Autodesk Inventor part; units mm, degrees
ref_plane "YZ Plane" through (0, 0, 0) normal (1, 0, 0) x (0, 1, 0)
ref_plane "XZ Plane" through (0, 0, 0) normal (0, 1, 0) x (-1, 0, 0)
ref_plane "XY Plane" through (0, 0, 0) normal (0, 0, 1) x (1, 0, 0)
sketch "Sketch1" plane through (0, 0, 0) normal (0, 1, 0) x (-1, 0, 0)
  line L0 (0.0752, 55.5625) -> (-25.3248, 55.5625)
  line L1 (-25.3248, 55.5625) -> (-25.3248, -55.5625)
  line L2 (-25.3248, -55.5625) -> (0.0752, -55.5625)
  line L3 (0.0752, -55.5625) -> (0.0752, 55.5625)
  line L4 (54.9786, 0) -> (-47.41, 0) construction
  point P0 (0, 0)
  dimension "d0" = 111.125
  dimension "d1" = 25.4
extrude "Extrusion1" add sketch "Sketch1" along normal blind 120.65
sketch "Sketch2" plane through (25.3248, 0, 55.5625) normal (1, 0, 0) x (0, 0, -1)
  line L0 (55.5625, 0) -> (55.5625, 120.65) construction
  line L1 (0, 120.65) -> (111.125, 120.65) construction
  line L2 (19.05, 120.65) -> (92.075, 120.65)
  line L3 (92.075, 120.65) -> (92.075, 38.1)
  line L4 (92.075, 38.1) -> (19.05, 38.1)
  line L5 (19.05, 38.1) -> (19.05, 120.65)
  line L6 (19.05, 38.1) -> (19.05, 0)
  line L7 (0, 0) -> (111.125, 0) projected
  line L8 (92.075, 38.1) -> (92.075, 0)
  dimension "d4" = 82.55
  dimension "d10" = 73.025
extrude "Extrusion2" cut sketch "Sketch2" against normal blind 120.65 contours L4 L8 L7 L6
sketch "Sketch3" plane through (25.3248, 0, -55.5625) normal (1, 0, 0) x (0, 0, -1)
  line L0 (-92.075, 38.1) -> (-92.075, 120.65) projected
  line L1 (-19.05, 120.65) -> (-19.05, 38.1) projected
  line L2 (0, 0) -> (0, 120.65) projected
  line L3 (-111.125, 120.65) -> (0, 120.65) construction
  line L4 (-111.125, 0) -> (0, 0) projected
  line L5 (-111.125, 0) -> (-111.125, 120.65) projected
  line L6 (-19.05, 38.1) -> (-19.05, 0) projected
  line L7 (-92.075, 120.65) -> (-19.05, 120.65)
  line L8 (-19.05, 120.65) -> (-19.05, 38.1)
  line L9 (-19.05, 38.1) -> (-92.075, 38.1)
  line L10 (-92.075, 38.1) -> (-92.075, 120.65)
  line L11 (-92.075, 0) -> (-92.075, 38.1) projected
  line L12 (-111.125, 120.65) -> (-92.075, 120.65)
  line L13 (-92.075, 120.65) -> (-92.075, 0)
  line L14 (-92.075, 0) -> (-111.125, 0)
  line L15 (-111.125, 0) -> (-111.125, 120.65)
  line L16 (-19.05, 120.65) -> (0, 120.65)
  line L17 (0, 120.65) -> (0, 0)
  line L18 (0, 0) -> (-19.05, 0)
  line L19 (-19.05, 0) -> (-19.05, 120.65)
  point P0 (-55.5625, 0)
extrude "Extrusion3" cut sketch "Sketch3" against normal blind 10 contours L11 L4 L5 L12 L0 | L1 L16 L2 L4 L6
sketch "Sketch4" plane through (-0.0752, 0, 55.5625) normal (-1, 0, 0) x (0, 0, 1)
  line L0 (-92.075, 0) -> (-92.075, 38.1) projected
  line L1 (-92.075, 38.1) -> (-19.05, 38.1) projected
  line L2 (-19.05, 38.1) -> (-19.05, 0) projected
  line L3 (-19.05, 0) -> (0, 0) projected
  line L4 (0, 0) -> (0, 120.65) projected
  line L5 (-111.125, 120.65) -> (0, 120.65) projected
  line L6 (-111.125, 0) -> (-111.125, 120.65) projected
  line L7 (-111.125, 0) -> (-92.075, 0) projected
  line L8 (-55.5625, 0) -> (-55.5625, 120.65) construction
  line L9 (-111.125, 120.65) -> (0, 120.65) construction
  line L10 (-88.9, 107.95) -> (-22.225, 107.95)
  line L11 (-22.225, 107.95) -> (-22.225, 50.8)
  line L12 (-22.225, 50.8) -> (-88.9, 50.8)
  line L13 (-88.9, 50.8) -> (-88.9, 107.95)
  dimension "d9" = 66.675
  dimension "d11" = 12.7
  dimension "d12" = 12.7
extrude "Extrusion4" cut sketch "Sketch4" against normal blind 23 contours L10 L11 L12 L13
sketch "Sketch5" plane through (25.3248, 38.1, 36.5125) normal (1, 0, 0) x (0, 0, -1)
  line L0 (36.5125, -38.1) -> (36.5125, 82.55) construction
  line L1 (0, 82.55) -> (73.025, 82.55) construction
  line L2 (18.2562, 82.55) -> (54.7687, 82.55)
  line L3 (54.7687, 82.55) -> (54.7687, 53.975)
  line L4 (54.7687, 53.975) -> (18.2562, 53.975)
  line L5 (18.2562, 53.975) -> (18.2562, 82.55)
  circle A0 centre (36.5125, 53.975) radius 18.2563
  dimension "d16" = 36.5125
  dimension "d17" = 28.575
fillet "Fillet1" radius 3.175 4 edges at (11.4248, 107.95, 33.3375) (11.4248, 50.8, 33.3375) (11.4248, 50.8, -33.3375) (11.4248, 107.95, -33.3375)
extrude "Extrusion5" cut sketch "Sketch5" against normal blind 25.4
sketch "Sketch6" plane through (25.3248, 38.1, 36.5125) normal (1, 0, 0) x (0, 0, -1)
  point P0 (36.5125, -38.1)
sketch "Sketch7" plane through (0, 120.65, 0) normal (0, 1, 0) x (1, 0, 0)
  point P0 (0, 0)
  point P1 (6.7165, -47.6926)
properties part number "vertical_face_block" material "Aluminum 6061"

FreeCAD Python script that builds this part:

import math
import FreeCAD as App
import Part
import Sketcher

V = App.Vector
Q = App.Units.Quantity


def edges_at(feature, points):
    """Names of the edges that pass closest to the given points."""
    edges = feature.Shape.Edges
    near = lambda p: min(range(len(edges)), key=lambda i: edges[i].distToShape(Part.Vertex(*p))[0])
    return sorted({f"Edge{near(p) + 1}" for p in points})


def add_polygon(sketch, points):
    """Adds a closed chain of lines whose ends are joined by coincident constraints."""
    first, n = sketch.GeometryCount, len(points)
    for a, b in zip(points, points[1:] + points[:1]):
        sketch.addGeometry(Part.LineSegment(App.Vector(*a, 0), App.Vector(*b, 0)), False)
    for i in range(n):
        sketch.addConstraint(Sketcher.Constraint("Coincident", first + i, 2, first + (i + 1) % n, 1))

doc = App.newDocument("Part")
body = doc.addObject("PartDesign::Body", "Body")

# Sketch on XZ plane
sketch1 = body.newObject("Sketcher::SketchObject", "Sketch")
sketch1.AttachmentSupport = (doc.getObject("XZ_Plane"), [""])
sketch1.MapMode = "FlatFace"
add_polygon(sketch1, [(0, -56), (0, 56), (25, 56), (25, -56)])  # lines 0-3
sketch1.addConstraint([
    Sketcher.Constraint("Vertical", 0),
    Sketcher.Constraint("Horizontal", 1),
    Sketcher.Constraint("Vertical", 2),
    Sketcher.Constraint("Horizontal", 3),
    Sketcher.Constraint("DistanceX", 1, 1, 1, 2, Q("1 in")),
    Sketcher.Constraint("DistanceY", 0, 1, 0, 2, Q("4.375 in")),
    Sketcher.Constraint("DistanceY", -1, 1, 0, 2, Q("2.1875 in")),
    Sketcher.Constraint("DistanceX", 0, 2, -1, 1, Q("0.0752 mm")),
])
pad1 = body.newObject("PartDesign::Pad", "Pad")
pad1.Profile = sketch1
pad1.Length = Q("4.75 in")
pad1.Reversed = True

# Sketch on YZ plane
sketch2 = body.newObject("Sketcher::SketchObject", "Sketch001")
sketch2.AttachmentSupport = (doc.getObject("YZ_Plane"), [""])
sketch2.MapMode = "FlatFace"
sketch2.AttachmentOffset = App.Placement(V(0, 0, 25.3248), App.Rotation())
add_polygon(sketch2, [(38, -37), (38, 37), (0, 37), (0, -37)])  # lines 0-3
sketch2.addConstraint([
    Sketcher.Constraint("Vertical", 0),
    Sketcher.Constraint("Horizontal", 1),
    Sketcher.Constraint("Vertical", 2),
    Sketcher.Constraint("Horizontal", 3),
    Sketcher.Constraint("Symmetric", 1, 2, 2, 2, -1, 1),
    Sketcher.Constraint("DistanceY", 0, 1, 0, 2, Q("2.875 in")),
    Sketcher.Constraint("DistanceX", 1, 2, 1, 1, Q("1.5 in")),
])
pocket1 = body.newObject("PartDesign::Pocket", "Pocket")
pocket1.Profile = sketch2
pocket1.Length = Q("4.75 in")

# Sketch on YZ plane
sketch3 = body.newObject("Sketcher::SketchObject", "Sketch002")
sketch3.AttachmentSupport = (doc.getObject("YZ_Plane"), [""])
sketch3.MapMode = "FlatFace"
sketch3.AttachmentOffset = App.Placement(V(0, 0, 25.3248), App.Rotation())
add_polygon(sketch3, [(0, 37), (121, 37), (121, 56), (0, 56)])  # lines 0-3
add_polygon(sketch3, [(121, -37), (0, -37), (0, -56), (121, -56)])  # lines 4-7
sketch3.addConstraint([
    Sketcher.Constraint("Horizontal", 0),
    Sketcher.Constraint("Vertical", 1),
    Sketcher.Constraint("Horizontal", 2),
    Sketcher.Constraint("Vertical", 3),
    Sketcher.Constraint("Horizontal", 4),
    Sketcher.Constraint("Vertical", 5),
    Sketcher.Constraint("Horizontal", 6),
    Sketcher.Constraint("Vertical", 7),
    Sketcher.Constraint("Symmetric", 3, 2, 4, 2, -1, 1),
    Sketcher.Constraint("Symmetric", 2, 2, 5, 2, -1),
    Sketcher.Constraint("Vertical", 1, 2, 6, 2),
    Sketcher.Constraint("DistanceX", 0, 1, 0, 2, Q("4.75 in")),
    Sketcher.Constraint("DistanceY", 1, 1, 1, 2, Q("0.75 in")),
    Sketcher.Constraint("DistanceY", -1, 1, 0, 2, Q("1.4375 in")),
])
pocket2 = body.newObject("PartDesign::Pocket", "Pocket001")
pocket2.Profile = sketch3
pocket2.Length = Q("0.3937008 in")

# Sketch on YZ plane
sketch4 = body.newObject("Sketcher::SketchObject", "Sketch003")
sketch4.AttachmentSupport = (doc.getObject("YZ_Plane"), [""])
sketch4.MapMode = "FlatFace"
sketch4.AttachmentOffset = App.Placement(V(0, 0, -0.0752), App.Rotation())
add_polygon(sketch4, [(108, 33), (108, -33), (51, -33), (51, 33)])  # lines 0-3
sketch4.addConstraint([
    Sketcher.Constraint("Vertical", 0),
    Sketcher.Constraint("Horizontal", 1),
    Sketcher.Constraint("Vertical", 2),
    Sketcher.Constraint("Horizontal", 3),
    Sketcher.Constraint("DistanceY", 0, 2, 0, 1, Q("2.625 in")),
    Sketcher.Constraint("DistanceX", -1, 1, 1, 2, Q("2 in")),
    Sketcher.Constraint("DistanceX", 1, 2, 1, 1, Q("2.25 in")),
    Sketcher.Constraint("DistanceY", 0, 2, -1, 1, Q("1.3125 in")),
])
pocket3 = body.newObject("PartDesign::Pocket", "Pocket002")
pocket3.Profile = sketch4
pocket3.Length = Q("0.9055118 in")
pocket3.Reversed = True
doc.recompute()

fillet = body.newObject("PartDesign::Fillet", "Fillet")
fillet.Base = (pocket3, edges_at(pocket3, [
    (11.425, 107.95, 33.337),
    (11.425, 50.8, 33.337),
    (11.425, 50.8, -33.337),
    (11.425, 107.95, -33.337),
]))
fillet.Radius = Q("0.125 in")

# Sketch on YZ plane
sketch5 = body.newObject("Sketcher::SketchObject", "Sketch004")
sketch5.AttachmentSupport = (doc.getObject("YZ_Plane"), [""])
sketch5.MapMode = "FlatFace"
sketch5.AttachmentOffset = App.Placement(V(0, 0, 25.3248), App.Rotation())
sketch5.addGeometry([
    Part.LineSegment(V(121, -18, 0), V(121, 18, 0)),
    Part.LineSegment(V(121, 18, 0), V(92, 18, 0)),
    Part.ArcOfCircle(Part.Circle(V(92, 0, 0), V(0, 0, 1), 18), math.radians(90), math.radians(270)),
    Part.LineSegment(V(92, -18, 0), V(121, -18, 0)),
], False)
sketch5.addConstraint([
    Sketcher.Constraint("Coincident", 0, 2, 1, 1),
    Sketcher.Constraint("Tangent", 1, 2, 2, 1),
    Sketcher.Constraint("Tangent", 2, 2, 3, 1),
    Sketcher.Constraint("Coincident", 3, 2, 0, 1),
    Sketcher.Constraint("Vertical", 0),
    Sketcher.Constraint("Horizontal", 1),
    Sketcher.Constraint("Horizontal", 3),
    Sketcher.Constraint("PointOnObject", 2, 3, -1),
    Sketcher.Constraint("Radius", 2, Q("0.718752 in")),
    Sketcher.Constraint("DistanceX", 1, 2, 1, 1, Q("1.125 in")),
    Sketcher.Constraint("DistanceX", -1, 1, 0, 2, Q("4.75 in")),
])
pocket4 = body.newObject("PartDesign::Pocket", "Pocket003")
pocket4.Profile = sketch5
pocket4.Length = Q("1 in")

doc.recompute()
